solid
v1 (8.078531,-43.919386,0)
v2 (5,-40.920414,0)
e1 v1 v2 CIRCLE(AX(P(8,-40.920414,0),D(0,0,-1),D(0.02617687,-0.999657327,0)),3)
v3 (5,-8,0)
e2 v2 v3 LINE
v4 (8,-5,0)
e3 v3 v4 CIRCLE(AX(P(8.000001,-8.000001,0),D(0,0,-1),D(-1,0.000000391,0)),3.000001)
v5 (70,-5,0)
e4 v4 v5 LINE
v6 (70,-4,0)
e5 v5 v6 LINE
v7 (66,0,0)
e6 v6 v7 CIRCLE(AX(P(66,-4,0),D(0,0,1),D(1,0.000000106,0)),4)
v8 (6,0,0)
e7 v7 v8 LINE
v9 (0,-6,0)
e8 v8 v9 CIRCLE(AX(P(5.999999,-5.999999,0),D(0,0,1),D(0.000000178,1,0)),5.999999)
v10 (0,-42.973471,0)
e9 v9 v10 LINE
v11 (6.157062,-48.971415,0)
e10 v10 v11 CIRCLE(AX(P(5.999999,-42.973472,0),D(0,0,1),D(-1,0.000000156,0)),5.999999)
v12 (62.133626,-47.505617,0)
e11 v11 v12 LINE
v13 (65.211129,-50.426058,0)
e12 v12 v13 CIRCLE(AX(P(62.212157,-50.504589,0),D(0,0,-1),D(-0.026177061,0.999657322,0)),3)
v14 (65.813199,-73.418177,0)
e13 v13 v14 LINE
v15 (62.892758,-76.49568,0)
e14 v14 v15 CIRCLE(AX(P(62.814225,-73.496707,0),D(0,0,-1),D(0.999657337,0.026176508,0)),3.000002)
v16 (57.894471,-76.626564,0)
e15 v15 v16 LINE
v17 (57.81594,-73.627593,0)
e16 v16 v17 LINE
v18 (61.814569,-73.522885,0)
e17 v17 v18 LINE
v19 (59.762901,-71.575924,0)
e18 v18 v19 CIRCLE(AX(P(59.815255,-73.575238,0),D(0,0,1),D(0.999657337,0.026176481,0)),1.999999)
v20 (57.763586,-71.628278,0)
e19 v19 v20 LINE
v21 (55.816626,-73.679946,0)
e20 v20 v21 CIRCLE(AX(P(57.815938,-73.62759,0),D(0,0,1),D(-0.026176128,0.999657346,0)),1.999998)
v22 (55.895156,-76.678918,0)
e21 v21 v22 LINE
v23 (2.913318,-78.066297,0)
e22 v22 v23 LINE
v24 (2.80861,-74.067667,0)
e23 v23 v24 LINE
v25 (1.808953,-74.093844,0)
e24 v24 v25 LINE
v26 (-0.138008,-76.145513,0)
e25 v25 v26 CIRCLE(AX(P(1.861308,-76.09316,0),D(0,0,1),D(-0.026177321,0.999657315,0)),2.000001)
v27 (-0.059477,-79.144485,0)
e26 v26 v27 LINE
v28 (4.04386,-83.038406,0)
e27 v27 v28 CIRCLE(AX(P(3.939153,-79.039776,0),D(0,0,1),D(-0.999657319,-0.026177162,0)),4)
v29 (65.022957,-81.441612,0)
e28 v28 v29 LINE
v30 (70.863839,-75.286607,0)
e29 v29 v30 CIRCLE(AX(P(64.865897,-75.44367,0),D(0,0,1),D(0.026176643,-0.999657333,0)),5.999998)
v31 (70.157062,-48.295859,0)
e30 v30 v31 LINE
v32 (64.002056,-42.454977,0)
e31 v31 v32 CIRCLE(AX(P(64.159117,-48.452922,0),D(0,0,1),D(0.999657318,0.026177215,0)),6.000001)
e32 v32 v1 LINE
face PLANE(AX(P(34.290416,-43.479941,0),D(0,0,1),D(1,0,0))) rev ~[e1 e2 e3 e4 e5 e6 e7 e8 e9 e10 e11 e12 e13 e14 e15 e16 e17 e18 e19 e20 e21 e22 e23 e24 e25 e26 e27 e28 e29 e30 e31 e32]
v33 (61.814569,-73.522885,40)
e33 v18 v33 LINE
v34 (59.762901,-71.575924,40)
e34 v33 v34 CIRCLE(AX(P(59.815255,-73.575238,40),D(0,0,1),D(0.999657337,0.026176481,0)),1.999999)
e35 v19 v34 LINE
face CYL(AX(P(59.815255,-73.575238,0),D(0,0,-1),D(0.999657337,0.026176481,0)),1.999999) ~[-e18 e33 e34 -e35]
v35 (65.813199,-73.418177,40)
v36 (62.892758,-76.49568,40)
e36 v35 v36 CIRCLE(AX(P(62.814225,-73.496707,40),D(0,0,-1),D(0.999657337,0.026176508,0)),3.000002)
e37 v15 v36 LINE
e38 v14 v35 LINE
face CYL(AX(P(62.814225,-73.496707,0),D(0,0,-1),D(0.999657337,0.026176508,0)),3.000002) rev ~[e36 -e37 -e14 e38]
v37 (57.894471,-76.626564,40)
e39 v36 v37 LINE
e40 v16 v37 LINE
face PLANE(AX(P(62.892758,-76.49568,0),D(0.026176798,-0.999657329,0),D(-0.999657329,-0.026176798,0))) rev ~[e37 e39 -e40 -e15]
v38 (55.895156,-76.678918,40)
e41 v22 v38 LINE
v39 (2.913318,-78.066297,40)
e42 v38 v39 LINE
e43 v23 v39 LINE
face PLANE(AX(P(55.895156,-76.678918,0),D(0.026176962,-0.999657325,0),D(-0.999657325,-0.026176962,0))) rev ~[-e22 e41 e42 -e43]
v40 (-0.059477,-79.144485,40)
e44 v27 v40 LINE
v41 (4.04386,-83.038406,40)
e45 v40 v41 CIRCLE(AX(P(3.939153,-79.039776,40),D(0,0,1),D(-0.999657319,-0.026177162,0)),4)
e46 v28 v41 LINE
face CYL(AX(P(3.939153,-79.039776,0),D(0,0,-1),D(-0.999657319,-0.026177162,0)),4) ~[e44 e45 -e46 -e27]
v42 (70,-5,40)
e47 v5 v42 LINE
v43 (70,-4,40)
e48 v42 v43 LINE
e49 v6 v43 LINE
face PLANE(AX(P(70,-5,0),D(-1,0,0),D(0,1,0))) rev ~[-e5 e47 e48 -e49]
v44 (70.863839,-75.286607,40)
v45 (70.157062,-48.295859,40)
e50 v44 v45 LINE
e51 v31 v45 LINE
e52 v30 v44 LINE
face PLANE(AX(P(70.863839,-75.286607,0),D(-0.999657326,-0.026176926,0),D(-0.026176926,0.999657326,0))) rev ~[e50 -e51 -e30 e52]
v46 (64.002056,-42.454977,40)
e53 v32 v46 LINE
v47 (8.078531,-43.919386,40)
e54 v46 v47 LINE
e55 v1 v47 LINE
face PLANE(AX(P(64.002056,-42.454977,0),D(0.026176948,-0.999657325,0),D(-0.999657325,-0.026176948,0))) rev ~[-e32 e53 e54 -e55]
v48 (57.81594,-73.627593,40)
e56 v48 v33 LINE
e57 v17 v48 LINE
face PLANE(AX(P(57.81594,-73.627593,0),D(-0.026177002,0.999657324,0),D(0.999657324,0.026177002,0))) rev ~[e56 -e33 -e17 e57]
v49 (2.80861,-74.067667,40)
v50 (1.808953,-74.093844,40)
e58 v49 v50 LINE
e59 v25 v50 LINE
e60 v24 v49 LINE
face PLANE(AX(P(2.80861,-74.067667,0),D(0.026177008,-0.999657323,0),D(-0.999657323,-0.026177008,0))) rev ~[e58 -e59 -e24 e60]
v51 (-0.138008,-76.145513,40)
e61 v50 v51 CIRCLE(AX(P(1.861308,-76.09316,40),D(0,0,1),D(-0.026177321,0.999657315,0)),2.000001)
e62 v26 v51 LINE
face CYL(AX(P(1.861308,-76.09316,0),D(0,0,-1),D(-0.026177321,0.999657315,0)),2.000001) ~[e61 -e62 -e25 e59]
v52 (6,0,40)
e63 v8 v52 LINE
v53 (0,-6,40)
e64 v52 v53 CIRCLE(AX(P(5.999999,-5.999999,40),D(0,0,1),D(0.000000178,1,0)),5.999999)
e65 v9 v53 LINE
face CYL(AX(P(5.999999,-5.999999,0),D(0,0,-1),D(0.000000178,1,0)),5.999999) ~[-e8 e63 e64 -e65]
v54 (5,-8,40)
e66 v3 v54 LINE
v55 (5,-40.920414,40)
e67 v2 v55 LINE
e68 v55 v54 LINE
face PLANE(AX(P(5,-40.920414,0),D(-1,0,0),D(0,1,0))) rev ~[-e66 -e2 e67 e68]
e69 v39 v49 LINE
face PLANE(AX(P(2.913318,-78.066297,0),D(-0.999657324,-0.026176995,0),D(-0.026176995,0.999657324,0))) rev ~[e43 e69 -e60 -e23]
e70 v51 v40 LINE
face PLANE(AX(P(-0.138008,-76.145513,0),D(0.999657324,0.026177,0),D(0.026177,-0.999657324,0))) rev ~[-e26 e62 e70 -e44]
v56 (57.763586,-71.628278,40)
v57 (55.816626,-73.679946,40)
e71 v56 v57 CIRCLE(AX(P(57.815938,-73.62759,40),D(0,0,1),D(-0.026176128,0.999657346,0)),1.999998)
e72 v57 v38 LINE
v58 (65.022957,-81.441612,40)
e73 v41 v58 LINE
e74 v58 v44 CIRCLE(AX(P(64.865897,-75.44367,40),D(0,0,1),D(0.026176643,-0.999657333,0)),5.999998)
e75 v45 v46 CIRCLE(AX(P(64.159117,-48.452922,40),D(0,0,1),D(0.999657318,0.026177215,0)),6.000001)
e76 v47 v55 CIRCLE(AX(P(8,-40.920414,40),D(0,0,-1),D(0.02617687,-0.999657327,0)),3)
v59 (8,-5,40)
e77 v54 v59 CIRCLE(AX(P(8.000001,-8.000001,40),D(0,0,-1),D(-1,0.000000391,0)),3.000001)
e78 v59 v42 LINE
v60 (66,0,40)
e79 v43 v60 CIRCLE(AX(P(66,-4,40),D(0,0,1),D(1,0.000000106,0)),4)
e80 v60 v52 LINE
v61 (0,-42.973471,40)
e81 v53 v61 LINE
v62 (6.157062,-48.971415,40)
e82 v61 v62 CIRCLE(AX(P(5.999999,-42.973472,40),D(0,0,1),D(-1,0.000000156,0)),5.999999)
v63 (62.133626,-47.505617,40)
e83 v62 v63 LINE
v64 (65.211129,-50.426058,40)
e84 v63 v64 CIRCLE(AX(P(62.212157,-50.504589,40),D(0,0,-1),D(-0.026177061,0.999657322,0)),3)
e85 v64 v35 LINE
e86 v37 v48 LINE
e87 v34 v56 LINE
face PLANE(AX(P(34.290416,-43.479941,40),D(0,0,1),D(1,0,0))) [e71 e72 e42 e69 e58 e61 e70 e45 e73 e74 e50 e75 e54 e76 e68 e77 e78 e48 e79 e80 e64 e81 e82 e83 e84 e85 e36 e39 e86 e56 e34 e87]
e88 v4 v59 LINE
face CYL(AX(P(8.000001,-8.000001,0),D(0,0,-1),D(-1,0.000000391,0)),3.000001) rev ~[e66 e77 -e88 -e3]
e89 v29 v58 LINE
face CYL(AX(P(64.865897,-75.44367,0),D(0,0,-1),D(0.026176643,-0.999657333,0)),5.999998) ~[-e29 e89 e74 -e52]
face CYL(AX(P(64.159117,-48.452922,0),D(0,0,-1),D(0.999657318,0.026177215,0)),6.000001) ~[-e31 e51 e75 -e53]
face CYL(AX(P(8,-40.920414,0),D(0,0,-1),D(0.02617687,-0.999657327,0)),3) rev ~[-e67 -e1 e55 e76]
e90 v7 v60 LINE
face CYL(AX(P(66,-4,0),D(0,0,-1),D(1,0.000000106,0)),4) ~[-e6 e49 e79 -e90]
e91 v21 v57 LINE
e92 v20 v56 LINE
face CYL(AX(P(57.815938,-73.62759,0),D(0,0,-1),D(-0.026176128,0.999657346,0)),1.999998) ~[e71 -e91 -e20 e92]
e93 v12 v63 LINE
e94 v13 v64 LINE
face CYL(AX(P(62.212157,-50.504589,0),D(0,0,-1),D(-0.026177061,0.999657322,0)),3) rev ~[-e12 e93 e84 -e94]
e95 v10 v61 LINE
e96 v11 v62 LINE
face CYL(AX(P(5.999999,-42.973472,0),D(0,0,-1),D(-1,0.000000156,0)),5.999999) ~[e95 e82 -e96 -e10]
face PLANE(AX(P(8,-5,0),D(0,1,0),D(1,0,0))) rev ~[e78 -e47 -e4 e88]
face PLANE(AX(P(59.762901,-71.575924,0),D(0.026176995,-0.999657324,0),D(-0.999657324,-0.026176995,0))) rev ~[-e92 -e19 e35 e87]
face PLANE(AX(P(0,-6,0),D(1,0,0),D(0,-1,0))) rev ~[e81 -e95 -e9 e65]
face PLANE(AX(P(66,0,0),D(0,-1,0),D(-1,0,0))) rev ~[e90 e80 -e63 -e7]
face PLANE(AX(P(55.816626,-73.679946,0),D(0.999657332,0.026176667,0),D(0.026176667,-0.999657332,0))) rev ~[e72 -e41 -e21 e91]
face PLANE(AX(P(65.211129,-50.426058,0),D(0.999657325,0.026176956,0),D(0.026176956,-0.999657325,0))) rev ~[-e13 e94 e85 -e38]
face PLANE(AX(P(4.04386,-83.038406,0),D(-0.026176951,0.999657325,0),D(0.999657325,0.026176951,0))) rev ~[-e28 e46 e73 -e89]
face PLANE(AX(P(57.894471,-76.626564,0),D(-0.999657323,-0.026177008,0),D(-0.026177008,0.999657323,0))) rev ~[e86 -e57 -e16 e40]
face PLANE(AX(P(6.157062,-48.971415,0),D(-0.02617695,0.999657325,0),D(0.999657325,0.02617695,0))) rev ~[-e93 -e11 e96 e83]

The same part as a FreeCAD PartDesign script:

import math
import FreeCAD as App
import Part
import Sketcher
from FreeCAD import Vector
Q = App.Units.Quantity

doc = App.newDocument("Part")
body = doc.addObject("PartDesign::Body", "Body")

# Sketch on XY plane
sketch1 = doc.addObject("Sketcher::SketchObject", "Sketch")
body.addObject(sketch1)
sketch1.AttachmentSupport = (doc.XY_Plane, [""])
sketch1.MapMode = "FlatFace"
sketch1.addGeometry(Part.LineSegment(Vector(66, 0, 0), Vector(6, 0, 0)), False)
sketch1.addGeometry(Part.ArcOfCircle(Part.Circle(Vector(6, -6, 0), Vector(0, 0, 1), 6), math.radians(90), math.radians(180)), False)
sketch1.addGeometry(Part.LineSegment(Vector(0, -6, 0), Vector(0, -43, 0)), False)
sketch1.addGeometry(Part.ArcOfCircle(Part.Circle(Vector(6, -43, 0), Vector(0, 0, 1), 6), math.radians(180), math.radians(272)), False)
sketch1.addGeometry(Part.LineSegment(Vector(6.2, -49, 0), Vector(62.1, -47.5, 0)), False)
sketch1.addGeometry(Part.ArcOfCircle(Part.Circle(Vector(62.2, -50.5, 0), Vector(0, 0, 1), 3), math.radians(1), math.radians(92)), False)
sketch1.addGeometry(Part.LineSegment(Vector(65.2, -50.4, 0), Vector(65.8, -73.4, 0)), False)
sketch1.addGeometry(Part.ArcOfCircle(Part.Circle(Vector(62.8, -73.5, 0), Vector(0, 0, 1), 3), math.radians(-88), math.radians(1)), False)
sketch1.addGeometry(Part.LineSegment(Vector(62.9, -76.5, 0), Vector(57.9, -76.6, 0)), False)
sketch1.addGeometry(Part.LineSegment(Vector(57.9, -76.6, 0), Vector(57.8, -73.6, 0)), False)
sketch1.addGeometry(Part.LineSegment(Vector(57.8, -73.6, 0), Vector(61.8, -73.5, 0)), False)
sketch1.addGeometry(Part.ArcOfCircle(Part.Circle(Vector(59.8, -73.6, 0), Vector(0, 0, 1), 2), math.radians(1), math.radians(92)), False)
sketch1.addGeometry(Part.LineSegment(Vector(59.8, -71.6, 0), Vector(57.8, -71.6, 0)), False)
sketch1.addGeometry(Part.ArcOfCircle(Part.Circle(Vector(57.8, -73.6, 0), Vector(0, 0, 1), 2), math.radians(91), math.radians(182)), False)
sketch1.addGeometry(Part.LineSegment(Vector(55.8, -73.7, 0), Vector(55.9, -76.7, 0)), False)
sketch1.addGeometry(Part.LineSegment(Vector(55.9, -76.7, 0), Vector(2.9, -78.1, 0)), False)
sketch1.addGeometry(Part.LineSegment(Vector(2.9, -78.1, 0), Vector(2.8, -74.1, 0)), False)
sketch1.addGeometry(Part.LineSegment(Vector(2.8, -74.1, 0), Vector(1.8, -74.1, 0)), False)
sketch1.addGeometry(Part.ArcOfCircle(Part.Circle(Vector(1.9, -76.1, 0), Vector(0, 0, 1), 2), math.radians(92), math.radians(181)), False)
sketch1.addGeometry(Part.LineSegment(Vector(-0.1, -76.1, 0), Vector(-0.1, -79.1, 0)), False)
sketch1.addGeometry(Part.ArcOfCircle(Part.Circle(Vector(3.9, -79, 0), Vector(0, 0, 1), 4), math.radians(-178), math.radians(-89)), False)
sketch1.addGeometry(Part.LineSegment(Vector(4, -83, 0), Vector(65, -81.4, 0)), False)
sketch1.addGeometry(Part.ArcOfCircle(Part.Circle(Vector(64.9, -75.4, 0), Vector(0, 0, 1), 6), math.radians(-89), math.radians(2)), False)
sketch1.addGeometry(Part.LineSegment(Vector(70.9, -75.3, 0), Vector(70.2, -48.3, 0)), False)
sketch1.addGeometry(Part.ArcOfCircle(Part.Circle(Vector(64.2, -48.5, 0), Vector(0, 0, 1), 6), math.radians(2), math.radians(91)), False)
sketch1.addGeometry(Part.LineSegment(Vector(64, -42.5, 0), Vector(8.1, -43.9, 0)), False)
sketch1.addGeometry(Part.ArcOfCircle(Part.Circle(Vector(8, -40.9, 0), Vector(0, 0, 1), 3), math.radians(-180), math.radians(-89)), False)
sketch1.addGeometry(Part.LineSegment(Vector(5, -40.9, 0), Vector(5, -8, 0)), False)
sketch1.addGeometry(Part.ArcOfCircle(Part.Circle(Vector(8, -8, 0), Vector(0, 0, 1), 3), math.radians(90), math.radians(180)), False)
sketch1.addGeometry(Part.LineSegment(Vector(8, -5, 0), Vector(70, -5, 0)), False)
sketch1.addGeometry(Part.LineSegment(Vector(70, -5, 0), Vector(70, -4, 0)), False)
sketch1.addGeometry(Part.ArcOfCircle(Part.Circle(Vector(66, -4, 0), Vector(0, 0, 1), 4), math.radians(0), math.radians(90)), False)
sketch1.addConstraint(Sketcher.Constraint("Tangent", 0, 2, 1, 1))
sketch1.addConstraint(Sketcher.Constraint("Tangent", 1, 2, 2, 1))
sketch1.addConstraint(Sketcher.Constraint("Tangent", 2, 2, 3, 1))
sketch1.addConstraint(Sketcher.Constraint("Tangent", 3, 2, 4, 1))
sketch1.addConstraint(Sketcher.Constraint("Tangent", 4, 2, 5, 2))
sketch1.addConstraint(Sketcher.Constraint("Tangent", 5, 1, 6, 1))
sketch1.addConstraint(Sketcher.Constraint("Tangent", 6, 2, 7, 2))
sketch1.addConstraint(Sketcher.Constraint("Tangent", 7, 1, 8, 1))
sketch1.addConstraint(Sketcher.Constraint("Coincident", 8, 2, 9, 1))
sketch1.addConstraint(Sketcher.Constraint("Coincident", 9, 2, 10, 1))
sketch1.addConstraint(Sketcher.Constraint("Coincident", 10, 2, 11, 1))
sketch1.addConstraint(Sketcher.Constraint("Tangent", 11, 2, 12, 1))
sketch1.addConstraint(Sketcher.Constraint("Tangent", 12, 2, 13, 1))
sketch1.addConstraint(Sketcher.Constraint("Tangent", 13, 2, 14, 1))
sketch1.addConstraint(Sketcher.Constraint("Coincident", 14, 2, 15, 1))
sketch1.addConstraint(Sketcher.Constraint("Coincident", 15, 2, 16, 1))
sketch1.addConstraint(Sketcher.Constraint("Coincident", 16, 2, 17, 1))
sketch1.addConstraint(Sketcher.Constraint("Tangent", 17, 2, 18, 1))
sketch1.addConstraint(Sketcher.Constraint("Tangent", 18, 2, 19, 1))
sketch1.addConstraint(Sketcher.Constraint("Tangent", 19, 2, 20, 1))
sketch1.addConstraint(Sketcher.Constraint("Tangent", 20, 2, 21, 1))
sketch1.addConstraint(Sketcher.Constraint("Tangent", 21, 2, 22, 1))
sketch1.addConstraint(Sketcher.Constraint("Tangent", 22, 2, 23, 1))
sketch1.addConstraint(Sketcher.Constraint("Tangent", 23, 2, 24, 1))
sketch1.addConstraint(Sketcher.Constraint("Tangent", 24, 2, 25, 1))
sketch1.addConstraint(Sketcher.Constraint("Tangent", 25, 2, 26, 2))
sketch1.addConstraint(Sketcher.Constraint("Tangent", 26, 1, 27, 1))
sketch1.addConstraint(Sketcher.Constraint("Tangent", 27, 2, 28, 2))
sketch1.addConstraint(Sketcher.Constraint("Tangent", 28, 1, 29, 1))
sketch1.addConstraint(Sketcher.Constraint("Coincident", 29, 2, 30, 1))
sketch1.addConstraint(Sketcher.Constraint("Tangent", 30, 2, 31, 1))
sketch1.addConstraint(Sketcher.Constraint("Tangent", 31, 2, 0, 1))
sketch1.addConstraint(Sketcher.Constraint("Horizontal", 0))
sketch1.addConstraint(Sketcher.Constraint("Vertical", 2))
sketch1.addConstraint(Sketcher.Constraint("Vertical", 27))
sketch1.addConstraint(Sketcher.Constraint("Horizontal", 29))
sketch1.addConstraint(Sketcher.Constraint("Vertical", 30))
sketch1.addConstraint(Sketcher.Constraint("Coincident", 9, 2, 13, 3))
sketch1.addConstraint(Sketcher.Constraint("Equal", 1, 3))
sketch1.addConstraint(Sketcher.Constraint("Equal", 5, 7))
sketch1.addConstraint(Sketcher.Constraint("Equal", 11, 13))
sketch1.addConstraint(Sketcher.Constraint("Equal", 11, 18))
sketch1.addConstraint(Sketcher.Constraint("Equal", 3, 22))
sketch1.addConstraint(Sketcher.Constraint("Equal", 7, 26))
sketch1.addConstraint(Sketcher.Constraint("Equal", 26, 28))
sketch1.addConstraint(Sketcher.Constraint("Equal", 20, 31))
sketch1.addConstraint(Sketcher.Constraint("PointOnObject", 0, 2, -1))
sketch1.addConstraint(Sketcher.Constraint("PointOnObject", 1, 2, -2))
sketch1.addConstraint(Sketcher.Constraint("Perpendicular", 4, 6))
sketch1.addConstraint(Sketcher.Constraint("Perpendicular", 6, 8))
sketch1.addConstraint(Sketcher.Constraint("Perpendicular", 8, 9))
sketch1.addConstraint(Sketcher.Constraint("Perpendicular", 9, 10))
sketch1.addConstraint(Sketcher.Constraint("Parallel", 10, 12))
sketch1.addConstraint(Sketcher.Constraint("Perpendicular", 12, 14))
sketch1.addConstraint(Sketcher.Constraint("Perpendicular", 14, 15))
sketch1.addConstraint(Sketcher.Constraint("Perpendicular", 15, 16))
sketch1.addConstraint(Sketcher.Constraint("Perpendicular", 16, 17))
sketch1.addConstraint(Sketcher.Constraint("Perpendicular", 17, 19))
sketch1.addConstraint(Sketcher.Constraint("Perpendicular", 19, 21))
sketch1.addConstraint(Sketcher.Constraint("Perpendicular", 21, 23))
sketch1.addConstraint(Sketcher.Constraint("Perpendicular", 23, 25))
sketch1.addConstraint(Sketcher.Constraint("Equal", 9, 14))
sketch1.addConstraint(Sketcher.Constraint("Equal", 10, 16))
sketch1.addConstraint(Sketcher.Constraint("Equal", 14, 19))
sketch1.addConstraint(Sketcher.Constraint("Radius", 1, Q("5.999999 mm")))
sketch1.addConstraint(Sketcher.Constraint("Radius", 5, Q("3 mm")))
sketch1.addConstraint(Sketcher.Constraint("Radius", 11, Q("1.999999 mm")))
sketch1.addConstraint(Sketcher.Constraint("Radius", 20, Q("4 mm")))
sketch1.addConstraint(Sketcher.Constraint("Radius", 24, Q("6.000001 mm")))
sketch1.addConstraint(Sketcher.Constraint("DistanceX", 0, 2, 0, 1, Q("60 mm")))
sketch1.addConstraint(Sketcher.Constraint("DistanceX", 29, 1, 29, 2, Q("62 mm")))
sketch1.addConstraint(Sketcher.Constraint("DistanceY", 30, 1, 30, 2, Q("1 mm")))
sketch1.addConstraint(Sketcher.Constraint("Distance", 6, Q("23.000001 mm")))
sketch1.addConstraint(Sketcher.Constraint("Distance", 8, Q("5 mm")))
sketch1.addConstraint(Sketcher.Constraint("Distance", 9, Q("2.999999 mm")))
sketch1.addConstraint(Sketcher.Constraint("Distance", 10, Q("4 mm")))
sketch1.addConstraint(Sketcher.Constraint("Distance", 15, Q("53 mm")))
sketch1.addConstraint(Sketcher.Constraint("Distance", 17, Q("1 mm")))
sketch1.addConstraint(Sketcher.Constraint("Distance", 21, Q("61 mm")))
sketch1.addConstraint(Sketcher.Constraint("Distance", 23, Q("27 mm")))
sketch1.addConstraint(Sketcher.Constraint("Angle", 4, Q("1.5 deg")))
sketch1.addConstraint(Sketcher.Constraint("DistanceY", 2, 2, 2, 1, Q("36.973471 mm")))
sketch1.addConstraint(Sketcher.Constraint("DistanceX", -1, 1, 6, 2, Q("65.813199 mm")))
pad1 = doc.addObject("PartDesign::Pad", "Pad")
body.addObject(pad1)
pad1.Profile = sketch1
pad1.Length = 40

doc.recompute()
